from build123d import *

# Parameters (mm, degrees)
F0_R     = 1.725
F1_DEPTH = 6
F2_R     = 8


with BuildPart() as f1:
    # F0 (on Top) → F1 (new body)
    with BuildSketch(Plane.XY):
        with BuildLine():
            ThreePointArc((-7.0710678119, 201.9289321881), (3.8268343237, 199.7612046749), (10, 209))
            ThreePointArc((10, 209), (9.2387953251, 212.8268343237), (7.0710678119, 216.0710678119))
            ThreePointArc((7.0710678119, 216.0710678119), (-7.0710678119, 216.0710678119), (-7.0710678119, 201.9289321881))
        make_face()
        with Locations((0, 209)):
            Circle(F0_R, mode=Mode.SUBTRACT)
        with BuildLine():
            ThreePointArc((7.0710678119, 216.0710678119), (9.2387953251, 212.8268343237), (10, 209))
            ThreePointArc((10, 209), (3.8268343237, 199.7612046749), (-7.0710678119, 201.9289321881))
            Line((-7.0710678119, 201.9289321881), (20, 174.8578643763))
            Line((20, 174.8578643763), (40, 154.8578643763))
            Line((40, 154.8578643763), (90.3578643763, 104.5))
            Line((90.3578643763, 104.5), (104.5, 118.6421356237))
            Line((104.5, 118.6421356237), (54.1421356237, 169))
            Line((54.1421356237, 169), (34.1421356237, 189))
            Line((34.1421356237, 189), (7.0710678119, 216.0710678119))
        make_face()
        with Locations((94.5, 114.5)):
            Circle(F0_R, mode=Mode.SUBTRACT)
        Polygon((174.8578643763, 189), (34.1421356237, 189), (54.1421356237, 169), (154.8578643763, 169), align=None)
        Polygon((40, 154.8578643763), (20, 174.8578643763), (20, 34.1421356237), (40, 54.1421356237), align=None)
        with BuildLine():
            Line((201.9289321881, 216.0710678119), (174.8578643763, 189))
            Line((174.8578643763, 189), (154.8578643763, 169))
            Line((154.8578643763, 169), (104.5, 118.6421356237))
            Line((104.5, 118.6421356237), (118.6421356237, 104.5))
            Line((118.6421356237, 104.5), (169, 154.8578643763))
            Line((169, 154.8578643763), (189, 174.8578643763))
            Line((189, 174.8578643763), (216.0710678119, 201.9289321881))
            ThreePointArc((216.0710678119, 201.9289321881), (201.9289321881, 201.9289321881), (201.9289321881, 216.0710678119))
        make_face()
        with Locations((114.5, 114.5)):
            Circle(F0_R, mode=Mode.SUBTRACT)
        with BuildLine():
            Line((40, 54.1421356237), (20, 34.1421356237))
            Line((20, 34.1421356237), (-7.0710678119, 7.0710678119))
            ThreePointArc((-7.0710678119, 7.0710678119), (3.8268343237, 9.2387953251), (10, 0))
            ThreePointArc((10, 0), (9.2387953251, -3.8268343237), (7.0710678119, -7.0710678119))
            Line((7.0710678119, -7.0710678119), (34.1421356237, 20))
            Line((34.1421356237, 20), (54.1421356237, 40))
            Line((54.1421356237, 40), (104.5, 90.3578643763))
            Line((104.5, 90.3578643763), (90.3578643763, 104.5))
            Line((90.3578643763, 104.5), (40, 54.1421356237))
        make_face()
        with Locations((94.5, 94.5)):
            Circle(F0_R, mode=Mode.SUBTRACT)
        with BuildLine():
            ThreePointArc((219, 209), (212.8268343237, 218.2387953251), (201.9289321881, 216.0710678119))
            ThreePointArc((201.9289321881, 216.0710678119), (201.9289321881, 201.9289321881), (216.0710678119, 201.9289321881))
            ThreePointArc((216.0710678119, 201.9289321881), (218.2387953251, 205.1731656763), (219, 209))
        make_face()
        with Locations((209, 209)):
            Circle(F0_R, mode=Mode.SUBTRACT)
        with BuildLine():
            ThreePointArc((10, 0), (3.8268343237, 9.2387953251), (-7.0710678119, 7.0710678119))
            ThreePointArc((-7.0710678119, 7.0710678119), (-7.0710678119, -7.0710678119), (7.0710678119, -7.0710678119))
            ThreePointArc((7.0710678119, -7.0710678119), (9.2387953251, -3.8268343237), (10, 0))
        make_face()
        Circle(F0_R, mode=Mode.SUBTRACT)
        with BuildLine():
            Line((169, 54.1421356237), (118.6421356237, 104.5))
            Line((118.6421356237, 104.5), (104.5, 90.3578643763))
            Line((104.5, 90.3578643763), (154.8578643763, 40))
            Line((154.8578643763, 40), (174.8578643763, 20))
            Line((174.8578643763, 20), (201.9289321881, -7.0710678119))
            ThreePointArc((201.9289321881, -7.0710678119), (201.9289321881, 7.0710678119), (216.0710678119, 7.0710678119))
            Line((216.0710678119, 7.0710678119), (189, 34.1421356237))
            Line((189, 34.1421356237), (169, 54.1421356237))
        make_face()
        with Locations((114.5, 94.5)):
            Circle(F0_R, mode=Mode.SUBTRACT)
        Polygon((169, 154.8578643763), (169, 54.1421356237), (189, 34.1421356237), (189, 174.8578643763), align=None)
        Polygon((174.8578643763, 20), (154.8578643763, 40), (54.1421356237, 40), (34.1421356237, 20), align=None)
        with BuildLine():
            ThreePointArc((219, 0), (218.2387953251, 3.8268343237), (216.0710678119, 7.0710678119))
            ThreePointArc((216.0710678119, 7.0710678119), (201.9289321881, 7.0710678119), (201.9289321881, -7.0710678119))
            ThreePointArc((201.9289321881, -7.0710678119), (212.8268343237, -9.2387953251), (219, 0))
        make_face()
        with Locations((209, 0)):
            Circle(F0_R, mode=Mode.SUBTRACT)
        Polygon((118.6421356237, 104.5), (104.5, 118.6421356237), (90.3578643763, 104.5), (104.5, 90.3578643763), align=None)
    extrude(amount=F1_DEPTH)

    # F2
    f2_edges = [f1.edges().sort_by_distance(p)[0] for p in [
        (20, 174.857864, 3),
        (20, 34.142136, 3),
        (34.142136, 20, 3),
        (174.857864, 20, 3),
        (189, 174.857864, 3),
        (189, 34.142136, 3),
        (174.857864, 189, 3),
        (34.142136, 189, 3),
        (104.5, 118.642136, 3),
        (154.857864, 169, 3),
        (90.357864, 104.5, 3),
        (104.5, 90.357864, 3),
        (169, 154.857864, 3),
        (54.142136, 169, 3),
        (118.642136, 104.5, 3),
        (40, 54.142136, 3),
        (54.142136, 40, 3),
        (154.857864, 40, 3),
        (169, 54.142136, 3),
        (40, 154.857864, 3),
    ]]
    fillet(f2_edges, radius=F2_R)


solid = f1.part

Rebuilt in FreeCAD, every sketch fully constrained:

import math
import FreeCAD as App
import Part
import Sketcher

V = App.Vector


def edges_at(feature, points):
    """Names of the edges that pass closest to the given points."""
    edges = feature.Shape.Edges
    near = lambda p: min(range(len(edges)), key=lambda i: edges[i].distToShape(Part.Vertex(*p))[0])
    return sorted({f"Edge{near(p) + 1}" for p in points})

doc = App.newDocument("Part")
body = doc.addObject("PartDesign::Body", "Body")

# Sketch on XY plane
sketch1 = doc.addObject("Sketcher::SketchObject", "Sketch")
body.addObject(sketch1)
sketch1.AttachmentSupport = (doc.XY_Plane, [""])
sketch1.MapMode = "FlatFace"
sketch1.addGeometry([
    Part.LineSegment(V(7.071068, -7.071068, 0), V(34.142136, 20, 0)),  # 0
    Part.LineSegment(V(34.142136, 20, 0), V(174.857864, 20, 0)),  # 1
    Part.LineSegment(V(174.857864, 20, 0), V(201.928932, -7.071068, 0)),  # 2
    Part.ArcOfCircle(Part.Circle(V(209, 0, 0), V(0, 0, 1), 10), math.radians(-135), math.radians(0)),  # 3
    Part.ArcOfCircle(Part.Circle(V(209, 0, 0), V(0, 0, 1), 10), math.radians(0), math.radians(45)),  # 4
    Part.LineSegment(V(216.071068, 7.071068, 0), V(189, 34.142136, 0)),  # 5
    Part.LineSegment(V(189, 34.142136, 0), V(189, 174.857864, 0)),  # 6
    Part.LineSegment(V(189, 174.857864, 0), V(216.071068, 201.928932, 0)),  # 7
    Part.ArcOfCircle(Part.Circle(V(209, 209, 0), V(0, 0, 1), 10), math.radians(-45), math.radians(0)),  # 8
    Part.ArcOfCircle(Part.Circle(V(209, 209, 0), V(0, 0, 1), 10), math.radians(0), math.radians(135)),  # 9
    Part.LineSegment(V(201.928932, 216.071068, 0), V(174.857864, 189, 0)),  # 10
    Part.LineSegment(V(174.857864, 189, 0), V(34.142136, 189, 0)),  # 11
    Part.LineSegment(V(34.142136, 189, 0), V(7.071068, 216.071068, 0)),  # 12
    Part.ArcOfCircle(Part.Circle(V(0, 209, 0), V(0, 0, 1), 10), math.radians(45), math.radians(225)),  # 13
    Part.LineSegment(V(-7.071068, 201.928932, 0), V(20, 174.857864, 0)),  # 14
    Part.LineSegment(V(20, 174.857864, 0), V(20, 34.142136, 0)),  # 15
    Part.LineSegment(V(20, 34.142136, 0), V(-7.071068, 7.071068, 0)),  # 16
    Part.ArcOfCircle(Part.Circle(V(0, 0, 0), V(0, 0, 1), 10), math.radians(135), math.radians(315)),  # 17
    Part.Circle(V(0, 0, 0), V(0, 0, 1), 1.725),  # 18
    Part.LineSegment(V(40, 54.142136, 0), V(40, 154.857864, 0)),  # 19
    Part.LineSegment(V(40, 154.857864, 0), V(90.357864, 104.5, 0)),  # 20
    Part.LineSegment(V(90.357864, 104.5, 0), V(40, 54.142136, 0)),  # 21
    Part.Circle(V(94.5, 94.5, 0), V(0, 0, 1), 1.725),  # 22
    Part.Circle(V(209, 0, 0), V(0, 0, 1), 1.725),  # 23
    Part.LineSegment(V(54.142136, 40, 0), V(104.5, 90.357864, 0)),  # 24
    Part.LineSegment(V(104.5, 90.357864, 0), V(154.857864, 40, 0)),  # 25
    Part.LineSegment(V(154.857864, 40, 0), V(54.142136, 40, 0)),  # 26
    Part.Circle(V(114.5, 94.5, 0), V(0, 0, 1), 1.725),  # 27
    Part.Circle(V(94.5, 114.5, 0), V(0, 0, 1), 1.725),  # 28
    Part.LineSegment(V(154.857864, 169, 0), V(104.5, 118.642136, 0)),  # 29
    Part.LineSegment(V(104.5, 118.642136, 0), V(54.142136, 169, 0)),  # 30
    Part.LineSegment(V(54.142136, 169, 0), V(154.857864, 169, 0)),  # 31
    Part.Circle(V(0, 209, 0), V(0, 0, 1), 1.725),  # 32
    Part.Circle(V(114.5, 114.5, 0), V(0, 0, 1), 1.725),  # 33
    Part.LineSegment(V(169, 54.142136, 0), V(118.642136, 104.5, 0)),  # 34
    Part.LineSegment(V(118.642136, 104.5, 0), V(169, 154.857864, 0)),  # 35
    Part.LineSegment(V(169, 154.857864, 0), V(169, 54.142136, 0)),  # 36
    Part.Circle(V(209, 209, 0), V(0, 0, 1), 1.725),  # 37
], False)
sketch1.addConstraint([
    Sketcher.Constraint("Coincident", 0, 2, 1, 1),
    Sketcher.Constraint("Coincident", 1, 2, 2, 1),
    Sketcher.Constraint("Tangent", 2, 2, 3, 1),
    Sketcher.Constraint("Tangent", 3, 2, 4, 1),
    Sketcher.Constraint("Tangent", 4, 2, 5, 1),
    Sketcher.Constraint("Coincident", 5, 2, 6, 1),
    Sketcher.Constraint("Coincident", 6, 2, 7, 1),
    Sketcher.Constraint("Tangent", 7, 2, 8, 1),
    Sketcher.Constraint("Tangent", 8, 2, 9, 1),
    Sketcher.Constraint("Tangent", 9, 2, 10, 1),
    Sketcher.Constraint("Coincident", 10, 2, 11, 1),
    Sketcher.Constraint("Coincident", 11, 2, 12, 1),
    Sketcher.Constraint("Tangent", 12, 2, 13, 1),
    Sketcher.Constraint("Tangent", 13, 2, 14, 1),
    Sketcher.Constraint("Coincident", 14, 2, 15, 1),
    Sketcher.Constraint("Coincident", 15, 2, 16, 1),
    Sketcher.Constraint("Tangent", 16, 2, 17, 1),
    Sketcher.Constraint("Tangent", 17, 2, 0, 1),
    Sketcher.Constraint("Coincident", 19, 2, 20, 1),
    Sketcher.Constraint("Coincident", 20, 2, 21, 1),
    Sketcher.Constraint("Coincident", 21, 2, 19, 1),
    Sketcher.Constraint("Coincident", 24, 2, 25, 1),
    Sketcher.Constraint("Coincident", 25, 2, 26, 1),
    Sketcher.Constraint("Coincident", 26, 2, 24, 1),
    Sketcher.Constraint("Coincident", 29, 2, 30, 1),
    Sketcher.Constraint("Coincident", 30, 2, 31, 1),
    Sketcher.Constraint("Coincident", 31, 2, 29, 1),
    Sketcher.Constraint("Coincident", 34, 2, 35, 1),
    Sketcher.Constraint("Coincident", 35, 2, 36, 1),
    Sketcher.Constraint("Coincident", 36, 2, 34, 1),
    Sketcher.Constraint("Horizontal", 1),
    Sketcher.Constraint("Vertical", 6),
    Sketcher.Constraint("Horizontal", 11),
    Sketcher.Constraint("Vertical", 15),
    Sketcher.Constraint("Vertical", 19),
    Sketcher.Constraint("Horizontal", 26),
    Sketcher.Constraint("Horizontal", 31),
    Sketcher.Constraint("Vertical", 36),
    Sketcher.Constraint("Coincident", 17, 3, -1, 1),
    Sketcher.Constraint("Coincident", 18, 3, -1, 1),
    Sketcher.Constraint("Coincident", 23, 3, 3, 3),
    Sketcher.Constraint("Coincident", 32, 3, 13, 3),
    Sketcher.Constraint("Coincident", 37, 3, 8, 3),
    Sketcher.Constraint("Equal", 3, 4),
    Sketcher.Constraint("Equal", 4, 8),
    Sketcher.Constraint("Equal", 8, 9),
    Sketcher.Constraint("Equal", 9, 13),
    Sketcher.Constraint("Equal", 13, 17),
    Sketcher.Constraint("Equal", 18, 22),
    Sketcher.Constraint("Equal", 22, 23),
    Sketcher.Constraint("Equal", 23, 27),
    Sketcher.Constraint("Equal", 27, 28),
    Sketcher.Constraint("Equal", 28, 32),
    Sketcher.Constraint("Equal", 32, 33),
    Sketcher.Constraint("Equal", 33, 37),
    Sketcher.Constraint("PointOnObject", 3, 3, -1),
    Sketcher.Constraint("PointOnObject", 13, 3, -2),
    Sketcher.Constraint("PointOnObject", 3, 2, -1),
    Sketcher.Constraint("Perpendicular", 0, 2),
    Sketcher.Constraint("Parallel", 2, 5),
    Sketcher.Constraint("Perpendicular", 5, 7),
    Sketcher.Constraint("Parallel", 7, 10),
    Sketcher.Constraint("Perpendicular", 10, 12),
    Sketcher.Constraint("Parallel", 12, 14),
    Sketcher.Constraint("Perpendicular", 14, 16),
    Sketcher.Constraint("Perpendicular", 16, 20),
    Sketcher.Constraint("Perpendicular", 20, 21),
    Sketcher.Constraint("Parallel", 21, 24),
    Sketcher.Constraint("Perpendicular", 24, 25),
    Sketcher.Constraint("Perpendicular", 25, 29),
    Sketcher.Constraint("Perpendicular", 29, 30),
    Sketcher.Constraint("Parallel", 30, 34),
    Sketcher.Constraint("Perpendicular", 34, 35),
    Sketcher.Constraint("Horizontal", 9, 3, 13, 3),
    Sketcher.Constraint("Horizontal", 22, 3, 27, 3),
    Sketcher.Constraint("Horizontal", 28, 3, 33, 3),
    Sketcher.Constraint("Horizontal", 37, 3, 8, 2),
    Sketcher.Constraint("Horizontal", 9, 2, 12, 2),
    Sketcher.Constraint("Horizontal", 6, 2, 14, 2),
    Sketcher.Constraint("Horizontal", 5, 2, 15, 2),
    Sketcher.Constraint("Horizontal", 20, 2, 34, 2),
    Sketcher.Constraint("Horizontal", 19, 2, 35, 2),
    Sketcher.Constraint("Vertical", 22, 3, 28, 3),
    Sketcher.Constraint("Vertical", 27, 3, 33, 3),
    Sketcher.Constraint("Vertical", 1, 2, 10, 2),
    Sketcher.Constraint("Vertical", 24, 2, 29, 2),
    Sketcher.Constraint("Vertical", 26, 2, 30, 2),
    Sketcher.Constraint("Equal", 11, 6),
    Sketcher.Constraint("Equal", 31, 19),
    Sketcher.Constraint("Equal", 2, 5),
    Sketcher.Constraint("Radius", 3, 10.0),
    Sketcher.Constraint("Diameter", 18, 3.45),
    Sketcher.Constraint("DistanceX", -1, 1, 3, 3, 209.0),
    Sketcher.Constraint("DistanceY", -1, 1, 0, 2, 20.0),
    Sketcher.Constraint("DistanceX", -1, 1, 19, 2, 40.0),
    Sketcher.Constraint("DistanceY", -1, 1, 25, 2, 40.0),
    Sketcher.Constraint("DistanceY", -1, 1, 30, 2, 169.0),
    Sketcher.Constraint("DistanceX", -1, 1, 35, 2, 169.0),
    Sketcher.Constraint("DistanceX", 22, 3, 27, 3, 20.0),
    Sketcher.Constraint("DistanceY", 22, 3, 28, 3, 20.0),
    Sketcher.Constraint("DistanceY", 19, 2, 14, 2, 20.0),
    Sketcher.Constraint("DistanceY", 22, 3, 20, 2, 10.0),
    Sketcher.Constraint("DistanceY", 15, 2, 21, 2, 20.0),
    Sketcher.Constraint("DistanceX", 22, 3, 24, 2, 10.0),
    Sketcher.Constraint("DistanceX", 25, 2, 1, 2, 20.0),
])
pad1 = doc.addObject("PartDesign::Pad", "Pad")
body.addObject(pad1)
pad1.Profile = sketch1
pad1.Length = 6
doc.recompute()

fillet = doc.addObject("PartDesign::Fillet", "Fillet")
body.addObject(fillet)
fillet.Base = (pad1, edges_at(pad1, [
    (20, 174.858, 3),
    (20, 34.142, 3),
    (34.142, 20, 3),
    (174.858, 20, 3),
    (189, 174.858, 3),
    (189, 34.142, 3),
    (174.858, 189, 3),
    (34.142, 189, 3),
    (104.5, 118.642, 3),
    (154.858, 169, 3),
    (90.358, 104.5, 3),
    (104.5, 90.358, 3),
    (169, 154.858, 3),
    (54.142, 169, 3),
    (118.642, 104.5, 3),
    (40, 54.142, 3),
    (54.142, 40, 3),
    (154.858, 40, 3),
    (169, 54.142, 3),
    (40, 154.858, 3),
]))
fillet.Radius = 8

doc.recompute()
